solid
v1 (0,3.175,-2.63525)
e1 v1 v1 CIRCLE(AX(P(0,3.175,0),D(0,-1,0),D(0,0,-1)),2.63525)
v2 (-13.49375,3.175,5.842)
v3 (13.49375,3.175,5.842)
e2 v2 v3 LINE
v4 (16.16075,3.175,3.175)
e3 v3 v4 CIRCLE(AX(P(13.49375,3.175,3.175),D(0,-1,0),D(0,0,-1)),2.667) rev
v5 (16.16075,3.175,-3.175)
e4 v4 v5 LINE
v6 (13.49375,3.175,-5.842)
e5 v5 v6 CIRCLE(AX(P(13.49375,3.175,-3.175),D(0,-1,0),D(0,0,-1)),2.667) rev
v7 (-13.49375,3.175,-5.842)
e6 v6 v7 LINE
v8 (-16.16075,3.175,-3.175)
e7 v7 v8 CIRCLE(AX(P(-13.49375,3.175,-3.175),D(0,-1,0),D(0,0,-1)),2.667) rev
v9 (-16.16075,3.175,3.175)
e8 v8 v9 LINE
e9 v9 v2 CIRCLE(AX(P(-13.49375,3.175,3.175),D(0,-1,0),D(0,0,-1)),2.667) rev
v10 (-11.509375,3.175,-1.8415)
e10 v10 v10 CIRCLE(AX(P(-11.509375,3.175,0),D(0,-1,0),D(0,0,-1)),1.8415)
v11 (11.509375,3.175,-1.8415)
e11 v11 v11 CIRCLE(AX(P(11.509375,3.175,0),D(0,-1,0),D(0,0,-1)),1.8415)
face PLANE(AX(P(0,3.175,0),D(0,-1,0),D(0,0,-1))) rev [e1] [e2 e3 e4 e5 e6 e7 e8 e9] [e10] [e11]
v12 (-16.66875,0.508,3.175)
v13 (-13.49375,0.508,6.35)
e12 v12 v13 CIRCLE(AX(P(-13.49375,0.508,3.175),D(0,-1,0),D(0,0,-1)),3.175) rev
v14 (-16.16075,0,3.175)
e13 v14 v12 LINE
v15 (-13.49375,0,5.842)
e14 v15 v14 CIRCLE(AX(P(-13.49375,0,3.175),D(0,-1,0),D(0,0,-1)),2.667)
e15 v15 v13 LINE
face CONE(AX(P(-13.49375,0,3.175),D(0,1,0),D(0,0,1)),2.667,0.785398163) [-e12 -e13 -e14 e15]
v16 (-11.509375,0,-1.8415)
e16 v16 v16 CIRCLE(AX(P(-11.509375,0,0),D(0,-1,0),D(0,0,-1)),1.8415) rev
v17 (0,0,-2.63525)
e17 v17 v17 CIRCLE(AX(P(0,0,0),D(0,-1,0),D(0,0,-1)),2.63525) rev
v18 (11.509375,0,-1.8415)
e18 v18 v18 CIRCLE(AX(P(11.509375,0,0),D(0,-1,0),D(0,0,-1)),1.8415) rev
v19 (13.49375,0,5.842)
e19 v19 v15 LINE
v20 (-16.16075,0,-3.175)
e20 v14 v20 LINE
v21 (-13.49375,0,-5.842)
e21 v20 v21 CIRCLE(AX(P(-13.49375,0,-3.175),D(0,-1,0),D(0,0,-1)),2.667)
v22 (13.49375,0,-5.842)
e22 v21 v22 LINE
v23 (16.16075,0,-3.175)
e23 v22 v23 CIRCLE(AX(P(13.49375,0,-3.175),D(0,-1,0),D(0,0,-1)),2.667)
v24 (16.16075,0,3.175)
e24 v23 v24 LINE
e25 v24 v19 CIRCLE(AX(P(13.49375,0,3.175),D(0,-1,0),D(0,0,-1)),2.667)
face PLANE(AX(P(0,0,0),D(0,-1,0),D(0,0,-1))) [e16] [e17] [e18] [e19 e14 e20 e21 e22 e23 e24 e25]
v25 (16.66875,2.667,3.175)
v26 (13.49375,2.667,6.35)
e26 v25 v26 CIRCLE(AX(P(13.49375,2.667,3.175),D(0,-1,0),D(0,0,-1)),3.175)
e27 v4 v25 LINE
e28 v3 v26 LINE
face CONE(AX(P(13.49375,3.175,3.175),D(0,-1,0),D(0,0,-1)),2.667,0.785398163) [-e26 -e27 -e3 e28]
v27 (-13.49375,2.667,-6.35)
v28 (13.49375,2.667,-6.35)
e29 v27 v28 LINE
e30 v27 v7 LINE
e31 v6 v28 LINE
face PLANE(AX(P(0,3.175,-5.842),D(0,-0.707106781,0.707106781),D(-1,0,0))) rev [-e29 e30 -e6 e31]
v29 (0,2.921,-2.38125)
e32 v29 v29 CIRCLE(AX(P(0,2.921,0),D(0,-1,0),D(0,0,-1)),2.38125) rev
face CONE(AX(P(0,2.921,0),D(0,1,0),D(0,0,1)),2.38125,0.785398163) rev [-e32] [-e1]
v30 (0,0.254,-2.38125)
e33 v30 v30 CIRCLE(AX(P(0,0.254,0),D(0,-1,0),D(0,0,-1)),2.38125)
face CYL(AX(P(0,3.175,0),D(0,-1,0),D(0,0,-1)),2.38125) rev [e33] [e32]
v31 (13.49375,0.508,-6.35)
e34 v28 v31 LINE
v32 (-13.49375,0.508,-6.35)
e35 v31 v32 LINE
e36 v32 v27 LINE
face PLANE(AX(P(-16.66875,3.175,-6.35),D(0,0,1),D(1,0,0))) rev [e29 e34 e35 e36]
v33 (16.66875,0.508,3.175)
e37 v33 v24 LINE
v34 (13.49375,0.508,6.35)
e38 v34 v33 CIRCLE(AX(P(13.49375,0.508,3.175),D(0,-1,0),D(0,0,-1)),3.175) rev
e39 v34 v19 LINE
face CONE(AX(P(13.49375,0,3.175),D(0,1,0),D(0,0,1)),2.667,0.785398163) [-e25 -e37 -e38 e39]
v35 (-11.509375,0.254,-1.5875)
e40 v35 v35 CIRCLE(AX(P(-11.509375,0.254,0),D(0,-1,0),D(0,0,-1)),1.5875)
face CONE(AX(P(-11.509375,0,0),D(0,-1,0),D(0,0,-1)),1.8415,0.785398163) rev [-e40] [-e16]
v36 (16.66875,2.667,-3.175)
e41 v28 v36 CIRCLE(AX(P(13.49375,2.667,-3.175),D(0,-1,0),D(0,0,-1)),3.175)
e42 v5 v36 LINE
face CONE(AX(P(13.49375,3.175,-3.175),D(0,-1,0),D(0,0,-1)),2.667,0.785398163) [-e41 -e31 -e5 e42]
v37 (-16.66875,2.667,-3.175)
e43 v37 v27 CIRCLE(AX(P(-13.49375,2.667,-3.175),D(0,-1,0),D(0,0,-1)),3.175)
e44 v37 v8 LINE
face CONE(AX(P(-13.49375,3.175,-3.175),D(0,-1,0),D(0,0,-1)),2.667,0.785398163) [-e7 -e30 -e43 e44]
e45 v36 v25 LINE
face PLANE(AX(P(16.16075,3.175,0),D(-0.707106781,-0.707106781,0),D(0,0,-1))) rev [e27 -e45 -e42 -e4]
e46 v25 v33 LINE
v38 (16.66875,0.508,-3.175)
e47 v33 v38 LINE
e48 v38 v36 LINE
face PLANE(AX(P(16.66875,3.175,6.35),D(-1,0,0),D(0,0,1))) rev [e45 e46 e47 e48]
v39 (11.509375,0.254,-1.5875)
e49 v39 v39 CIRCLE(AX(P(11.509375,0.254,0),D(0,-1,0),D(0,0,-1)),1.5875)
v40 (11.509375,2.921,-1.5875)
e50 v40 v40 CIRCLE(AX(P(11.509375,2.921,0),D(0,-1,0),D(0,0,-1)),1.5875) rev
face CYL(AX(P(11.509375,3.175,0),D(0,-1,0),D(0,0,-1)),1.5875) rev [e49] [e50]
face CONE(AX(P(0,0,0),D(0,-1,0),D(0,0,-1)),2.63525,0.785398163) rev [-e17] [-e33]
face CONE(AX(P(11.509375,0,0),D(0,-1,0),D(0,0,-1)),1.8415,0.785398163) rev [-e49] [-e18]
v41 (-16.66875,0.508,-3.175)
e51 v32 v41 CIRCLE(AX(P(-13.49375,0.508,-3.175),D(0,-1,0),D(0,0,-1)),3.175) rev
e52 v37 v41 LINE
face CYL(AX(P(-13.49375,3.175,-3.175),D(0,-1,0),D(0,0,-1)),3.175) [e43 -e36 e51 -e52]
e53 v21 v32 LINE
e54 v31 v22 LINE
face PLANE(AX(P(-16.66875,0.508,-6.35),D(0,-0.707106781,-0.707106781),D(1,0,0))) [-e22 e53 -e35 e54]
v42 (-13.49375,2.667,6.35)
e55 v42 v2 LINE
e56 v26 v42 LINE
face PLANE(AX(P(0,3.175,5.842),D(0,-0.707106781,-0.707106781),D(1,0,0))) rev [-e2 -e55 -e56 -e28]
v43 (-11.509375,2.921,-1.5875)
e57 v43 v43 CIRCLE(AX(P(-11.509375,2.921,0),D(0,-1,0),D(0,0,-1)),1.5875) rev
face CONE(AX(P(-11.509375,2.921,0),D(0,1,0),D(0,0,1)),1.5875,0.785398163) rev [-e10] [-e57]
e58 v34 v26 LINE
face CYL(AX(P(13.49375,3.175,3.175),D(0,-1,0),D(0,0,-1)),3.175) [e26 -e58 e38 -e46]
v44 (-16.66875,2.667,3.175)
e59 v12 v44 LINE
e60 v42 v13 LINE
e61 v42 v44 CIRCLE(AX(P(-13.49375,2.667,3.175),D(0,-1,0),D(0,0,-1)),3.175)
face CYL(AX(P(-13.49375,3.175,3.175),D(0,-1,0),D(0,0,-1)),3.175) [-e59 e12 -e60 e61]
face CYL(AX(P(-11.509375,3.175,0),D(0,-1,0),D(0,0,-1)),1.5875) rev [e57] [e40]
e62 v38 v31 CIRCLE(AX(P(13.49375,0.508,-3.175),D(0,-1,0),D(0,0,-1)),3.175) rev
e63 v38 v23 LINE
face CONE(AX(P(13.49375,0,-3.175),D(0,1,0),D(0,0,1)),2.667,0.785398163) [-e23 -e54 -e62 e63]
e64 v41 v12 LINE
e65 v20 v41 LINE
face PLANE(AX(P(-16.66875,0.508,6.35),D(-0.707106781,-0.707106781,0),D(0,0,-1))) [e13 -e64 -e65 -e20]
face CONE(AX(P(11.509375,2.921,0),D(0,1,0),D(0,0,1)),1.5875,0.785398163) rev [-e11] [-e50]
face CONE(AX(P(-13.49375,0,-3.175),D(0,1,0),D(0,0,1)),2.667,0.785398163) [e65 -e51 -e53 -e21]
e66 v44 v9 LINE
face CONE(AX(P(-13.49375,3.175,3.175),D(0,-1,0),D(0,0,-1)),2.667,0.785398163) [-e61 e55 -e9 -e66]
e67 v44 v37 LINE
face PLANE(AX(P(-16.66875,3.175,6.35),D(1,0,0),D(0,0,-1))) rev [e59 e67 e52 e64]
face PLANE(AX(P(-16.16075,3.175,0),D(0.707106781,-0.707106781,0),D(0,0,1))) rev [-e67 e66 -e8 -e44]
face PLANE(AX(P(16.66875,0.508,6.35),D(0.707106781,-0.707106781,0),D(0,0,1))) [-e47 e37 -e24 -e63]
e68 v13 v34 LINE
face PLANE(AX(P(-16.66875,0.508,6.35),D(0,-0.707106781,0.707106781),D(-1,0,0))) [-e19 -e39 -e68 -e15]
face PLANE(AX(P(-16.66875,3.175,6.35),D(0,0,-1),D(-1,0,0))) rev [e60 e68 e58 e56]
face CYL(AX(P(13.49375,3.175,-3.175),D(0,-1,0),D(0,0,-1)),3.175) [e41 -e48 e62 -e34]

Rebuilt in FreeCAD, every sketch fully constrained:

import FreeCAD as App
import Part
import Sketcher

V = App.Vector
Q = App.Units.Quantity


def edges_at(feature, points):
    """Names of the edges that pass closest to the given points."""
    edges = feature.Shape.Edges
    near = lambda p: min(range(len(edges)), key=lambda i: edges[i].distToShape(Part.Vertex(*p))[0])
    return sorted({f"Edge{near(p) + 1}" for p in points})


def add_polygon(sketch, points):
    """Adds a closed chain of lines whose ends are joined by coincident constraints."""
    first, n = sketch.GeometryCount, len(points)
    for a, b in zip(points, points[1:] + points[:1]):
        sketch.addGeometry(Part.LineSegment(App.Vector(*a, 0), App.Vector(*b, 0)), False)
    for i in range(n):
        sketch.addConstraint(Sketcher.Constraint("Coincident", first + i, 2, first + (i + 1) % n, 1))

doc = App.newDocument("Part")
body = doc.addObject("PartDesign::Body", "Body")

# Sketch on XZ plane
sketch1 = body.newObject("Sketcher::SketchObject", "Sketch")
sketch1.AttachmentSupport = (doc.getObject("XZ_Plane"), [""])
sketch1.MapMode = "FlatFace"
add_polygon(sketch1, [(-16.66875, -6.35), (-16.66875, 6.35), (16.66875, 6.35), (16.66875, -6.35)])  # lines 0-3
sketch1.addGeometry(Part.Circle(V(-11.509375, 0, 0), V(0, 0, 1), 1.5875), False)  # 4
sketch1.addGeometry(Part.Circle(V(0, 0, 0), V(0, 0, 1), 2.38125), False)  # 5
sketch1.addGeometry(Part.Circle(V(11.509375, 0, 0), V(0, 0, 1), 1.5875), False)  # 6
sketch1.addConstraint(Sketcher.Constraint("Vertical", 0))
sketch1.addConstraint(Sketcher.Constraint("Horizontal", 1))
sketch1.addConstraint(Sketcher.Constraint("Vertical", 2))
sketch1.addConstraint(Sketcher.Constraint("Horizontal", 3))
sketch1.addConstraint(Sketcher.Constraint("Coincident", 5, 3, -1, 1))
sketch1.addConstraint(Sketcher.Constraint("Equal", 4, 6))
sketch1.addConstraint(Sketcher.Constraint("Symmetric", 4, 3, 6, 3, -1, 1))
sketch1.addConstraint(Sketcher.Constraint("Symmetric", 0, 2, 2, 2, -1, 1))
sketch1.addConstraint(Sketcher.Constraint("PointOnObject", 4, 3, -1))
sketch1.addConstraint(Sketcher.Constraint("Diameter", 4, Q("0.125 in")))
sketch1.addConstraint(Sketcher.Constraint("Diameter", 5, Q("0.1875 in")))
sketch1.addConstraint(Sketcher.Constraint("DistanceY", 0, 1, 0, 2, Q("0.5 in")))
sketch1.addConstraint(Sketcher.Constraint("DistanceX", 1, 1, 1, 2, Q("1.3125 in")))
sketch1.addConstraint(Sketcher.Constraint("DistanceX", 4, 3, -1, 1, Q("0.453125 in")))
pad1 = body.newObject("PartDesign::Pad", "Pad")
pad1.Profile = sketch1
pad1.Length = Q("0.125 in")
pad1.Reversed = True
doc.recompute()

fillet = body.newObject("PartDesign::Fillet", "Fillet")
fillet.Base = (pad1, edges_at(pad1, [
    (16.669, 1.587, 6.35),
    (-16.669, 1.587, 6.35),
    (-16.669, 1.587, -6.35),
    (16.669, 1.587, -6.35),
]))
fillet.Radius = Q("0.125 in")
doc.recompute()

chamfer = body.newObject("PartDesign::Chamfer", "Chamfer")
chamfer.Base = (fillet, edges_at(fillet, [
    (16.669, 0, 0),
    (16.669, 3.175, 0),
    (0, 0, 6.35),
    (-16.669, 0, 0),
    (0, 0, -6.35),
    (-15.739, 0, 5.42),
    (15.739, 0, -5.42),
    (-15.739, 0, -5.42),
    (15.739, 0, 5.42),
    (0, 3.175, 6.35),
    (0, 3.175, -6.35),
    (-16.669, 3.175, 0),
    (-15.739, 3.175, 5.42),
    (15.739, 3.175, -5.42),
    (-15.739, 3.175, -5.42),
    (15.739, 3.175, 5.42),
]))
chamfer.Size = Q("0.02 in")
doc.recompute()

chamfer2 = body.newObject("PartDesign::Chamfer", "Chamfer001")
chamfer2.Base = (chamfer, edges_at(chamfer, [
    (-13.097, 0, 0),
    (-13.097, 3.175, 0),
    (9.922, 0, 0),
    (9.922, 3.175, 0),
    (-2.381, 0, 0),
    (-2.381, 3.175, 0),
]))
chamfer2.Size = Q("0.01 in")

doc.recompute()
